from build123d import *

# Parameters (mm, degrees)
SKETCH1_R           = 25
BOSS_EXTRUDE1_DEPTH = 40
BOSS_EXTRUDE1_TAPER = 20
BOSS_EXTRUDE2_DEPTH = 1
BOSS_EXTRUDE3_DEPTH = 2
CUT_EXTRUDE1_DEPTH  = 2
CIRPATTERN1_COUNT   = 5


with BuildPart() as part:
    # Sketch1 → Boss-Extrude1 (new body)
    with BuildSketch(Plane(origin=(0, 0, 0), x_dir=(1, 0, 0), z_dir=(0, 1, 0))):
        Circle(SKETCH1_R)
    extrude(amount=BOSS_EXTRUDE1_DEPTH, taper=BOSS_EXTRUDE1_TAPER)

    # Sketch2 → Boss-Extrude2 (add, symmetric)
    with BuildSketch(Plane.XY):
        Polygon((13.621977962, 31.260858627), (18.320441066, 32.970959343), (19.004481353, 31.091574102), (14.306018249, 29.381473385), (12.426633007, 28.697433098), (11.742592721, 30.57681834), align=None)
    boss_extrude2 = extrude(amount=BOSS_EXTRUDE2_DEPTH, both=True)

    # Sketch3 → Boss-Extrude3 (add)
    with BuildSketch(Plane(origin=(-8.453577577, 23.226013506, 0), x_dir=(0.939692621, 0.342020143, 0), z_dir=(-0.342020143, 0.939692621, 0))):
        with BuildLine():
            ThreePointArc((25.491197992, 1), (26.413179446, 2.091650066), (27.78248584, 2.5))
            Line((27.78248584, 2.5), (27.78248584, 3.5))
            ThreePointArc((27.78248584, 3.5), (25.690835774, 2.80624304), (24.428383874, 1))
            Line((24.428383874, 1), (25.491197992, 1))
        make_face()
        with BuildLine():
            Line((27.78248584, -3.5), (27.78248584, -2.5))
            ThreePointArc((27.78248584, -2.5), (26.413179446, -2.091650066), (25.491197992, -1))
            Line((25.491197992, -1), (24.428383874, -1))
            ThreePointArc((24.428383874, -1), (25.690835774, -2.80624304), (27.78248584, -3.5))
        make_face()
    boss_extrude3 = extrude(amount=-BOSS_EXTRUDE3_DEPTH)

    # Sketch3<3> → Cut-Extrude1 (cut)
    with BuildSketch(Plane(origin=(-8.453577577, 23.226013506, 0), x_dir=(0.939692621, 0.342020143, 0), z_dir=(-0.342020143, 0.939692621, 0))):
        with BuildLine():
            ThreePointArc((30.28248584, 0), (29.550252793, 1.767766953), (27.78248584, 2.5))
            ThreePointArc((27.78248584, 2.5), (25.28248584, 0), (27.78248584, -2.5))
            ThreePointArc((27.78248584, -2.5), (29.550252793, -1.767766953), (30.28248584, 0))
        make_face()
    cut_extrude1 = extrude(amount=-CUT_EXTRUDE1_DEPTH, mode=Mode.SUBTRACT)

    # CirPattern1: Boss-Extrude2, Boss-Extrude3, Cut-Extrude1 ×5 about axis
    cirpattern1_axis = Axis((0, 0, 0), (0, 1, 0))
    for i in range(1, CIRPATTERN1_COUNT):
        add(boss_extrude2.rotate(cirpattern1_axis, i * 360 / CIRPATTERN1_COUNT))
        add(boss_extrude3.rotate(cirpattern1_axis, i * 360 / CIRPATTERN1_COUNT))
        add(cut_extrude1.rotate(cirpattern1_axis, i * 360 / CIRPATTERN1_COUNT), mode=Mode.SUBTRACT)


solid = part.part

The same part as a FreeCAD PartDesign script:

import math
import FreeCAD as App
import Part
import Sketcher
from FreeCAD import Vector
Q = App.Units.Quantity

doc = App.newDocument("Part")
body = doc.addObject("PartDesign::Body", "Body")

# Sketch on XZ plane
sketch1 = doc.addObject("Sketcher::SketchObject", "Sketch")
body.addObject(sketch1)
sketch1.AttachmentSupport = (doc.XZ_Plane, [""])
sketch1.MapMode = "FlatFace"
sketch1.addGeometry(Part.Circle(Vector(0, 0, 0), Vector(0, 0, 1), 25), False)
sketch1.addConstraint([
    Sketcher.Constraint("Coincident", 0, 3, -1, 1),
    Sketcher.Constraint("Diameter", 0, Q("50 mm")),
])
pad1 = doc.addObject("PartDesign::Pad", "Pad")
body.addObject(pad1)
pad1.Profile = sketch1
pad1.Length = 40
pad1.Reversed = True
pad1.TaperAngle = -20

# Sketch on XY plane
sketch2 = doc.addObject("Sketcher::SketchObject", "Sketch001")
body.addObject(sketch2)
sketch2.AttachmentSupport = (doc.XY_Plane, [""])
sketch2.MapMode = "FlatFace"
sketch2.addGeometry([
    Part.LineSegment(Vector(18.320441, 32.970959, 0), Vector(13.621978, 31.260859, 0)),  # 0
    Part.LineSegment(Vector(13.621978, 31.260859, 0), Vector(11.742593, 30.576818, 0)),  # 1
    Part.LineSegment(Vector(11.742593, 30.576818, 0), Vector(12.426633, 28.697433, 0)),  # 2
    Part.LineSegment(Vector(12.426633, 28.697433, 0), Vector(14.306018, 29.381473, 0)),  # 3
    Part.LineSegment(Vector(14.306018, 29.381473, 0), Vector(19.004481, 31.091574, 0)),  # 4
    Part.LineSegment(Vector(19.004481, 31.091574, 0), Vector(18.320441, 32.970959, 0)),  # 5
], False)
sketch2.addConstraint([
    Sketcher.Constraint("Coincident", 0, 2, 1, 1),
    Sketcher.Constraint("Coincident", 1, 2, 2, 1),
    Sketcher.Constraint("Coincident", 2, 2, 3, 1),
    Sketcher.Constraint("Coincident", 3, 2, 4, 1),
    Sketcher.Constraint("Coincident", 4, 2, 5, 1),
    Sketcher.Constraint("Coincident", 5, 2, 0, 1),
    Sketcher.Constraint("Parallel", 0, 1),
    Sketcher.Constraint("Perpendicular", 1, 2),
    Sketcher.Constraint("Perpendicular", 2, 3),
    Sketcher.Constraint("Parallel", 3, 4),
    Sketcher.Constraint("Perpendicular", 4, 5),
    Sketcher.Constraint("Equal", 1, 2),
    Sketcher.Constraint("Equal", 2, 3),
    Sketcher.Constraint("Angle", 0, Q("-160 deg")),
    Sketcher.Constraint("Distance", 0, Q("5 mm")),
    Sketcher.Constraint("Distance", 1, Q("2 mm")),
    Sketcher.Constraint("DistanceY", -1, 1, 0, 2, Q("31.260859 mm")),
    Sketcher.Constraint("DistanceX", -1, 1, 3, 2, Q("14.306018 mm")),
])
pad2 = doc.addObject("PartDesign::Pad", "Pad001")
body.addObject(pad2)
pad2.Profile = sketch2
pad2.Length = 2
pad2.Midplane = True

# Sketch on an angled plane
sketch3 = doc.addObject("Sketcher::SketchObject", "Sketch002")
body.addObject(sketch3)
sketch3.Placement = App.Placement(Vector(-8.453578, 23.226014, 0), App.Rotation(Vector(0.939692621, 0.342020143, 0), Vector(0, 0, -1), Vector(-0.342020143, 0.939692621, 0), "ZXY"))
sketch3.addGeometry([
    Part.ArcOfCircle(Part.Circle(Vector(27.782486, 0, 0), Vector(0, 0, 1), 2.5), math.radians(90), math.radians(156.421821)),  # 0
    Part.LineSegment(Vector(27.782486, 2.5, 0), Vector(27.782486, 3.5, 0)),  # 1
    Part.ArcOfCircle(Part.Circle(Vector(27.782486, 0, 0), Vector(0, 0, 1), 3.5), math.radians(90), math.radians(163.39845)),  # 2
    Part.LineSegment(Vector(24.428384, 1, 0), Vector(25.491198, 1, 0)),  # 3
    Part.LineSegment(Vector(27.782486, -3.5, 0), Vector(27.782486, -2.5, 0)),  # 4
    Part.ArcOfCircle(Part.Circle(Vector(27.782486, 0, 0), Vector(0, 0, 1), 2.5), math.radians(-156.421821), math.radians(-90)),  # 5
    Part.LineSegment(Vector(25.491198, -1, 0), Vector(24.428384, -1, 0)),  # 6
    Part.ArcOfCircle(Part.Circle(Vector(27.782486, 0, 0), Vector(0, 0, 1), 3.5), math.radians(-163.39845), math.radians(-90)),  # 7
], False)
sketch3.addConstraint([
    Sketcher.Constraint("Coincident", 0, 1, 1, 1),
    Sketcher.Constraint("Coincident", 1, 2, 2, 1),
    Sketcher.Constraint("Coincident", 2, 2, 3, 1),
    Sketcher.Constraint("Coincident", 3, 2, 0, 2),
    Sketcher.Constraint("Coincident", 4, 2, 5, 2),
    Sketcher.Constraint("Coincident", 5, 1, 6, 1),
    Sketcher.Constraint("Coincident", 6, 2, 7, 1),
    Sketcher.Constraint("Coincident", 7, 2, 4, 1),
    Sketcher.Constraint("Vertical", 1),
    Sketcher.Constraint("Horizontal", 3),
    Sketcher.Constraint("Vertical", 4),
    Sketcher.Constraint("Horizontal", 6),
    Sketcher.Constraint("Coincident", 2, 3, 0, 3),
    Sketcher.Constraint("Coincident", 5, 3, 0, 3),
    Sketcher.Constraint("Coincident", 7, 3, 0, 3),
    Sketcher.Constraint("Equal", 0, 5),
    Sketcher.Constraint("Equal", 2, 7),
    Sketcher.Constraint("Symmetric", 0, 1, 4, 2, -1),
    Sketcher.Constraint("Vertical", 7, 3, 0, 1),
    Sketcher.Constraint("Vertical", 3, 2, 5, 1),
    Sketcher.Constraint("Radius", 0, Q("2.5 mm")),
    Sketcher.Constraint("Radius", 2, Q("3.5 mm")),
    Sketcher.Constraint("DistanceY", -1, 1, 2, 2, Q("1 mm")),
    Sketcher.Constraint("DistanceX", -1, 1, 0, 3, Q("27.782486 mm")),
])
pad3 = doc.addObject("PartDesign::Pad", "Pad002")
body.addObject(pad3)
pad3.Profile = sketch3
pad3.Length = 2
pad3.Reversed = True

# Sketch on an angled plane
sketch4 = doc.addObject("Sketcher::SketchObject", "Sketch003")
body.addObject(sketch4)
sketch4.Placement = App.Placement(Vector(-8.453578, 23.226014, 0), App.Rotation(Vector(0.939692621, 0.342020143, 0), Vector(0, 0, -1), Vector(-0.342020143, 0.939692621, 0), "ZXY"))
sketch4.addGeometry([
    Part.ArcOfCircle(Part.Circle(Vector(27.782486, 0, 0), Vector(0, 0, 1), 2.5), math.radians(0), math.radians(90)),
    Part.ArcOfCircle(Part.Circle(Vector(27.782486, 0, 0), Vector(0, 0, 1), 2.5), math.radians(90), math.radians(270)),
    Part.ArcOfCircle(Part.Circle(Vector(27.782486, 0, 0), Vector(0, 0, 1), 2.5), math.radians(-90), math.radians(0)),
], False)
sketch4.addConstraint([
    Sketcher.Constraint("Tangent", 0, 2, 1, 1),
    Sketcher.Constraint("Tangent", 1, 2, 2, 1),
    Sketcher.Constraint("Tangent", 2, 2, 0, 1),
    Sketcher.Constraint("Symmetric", 0, 2, 1, 2, -1),
    Sketcher.Constraint("PointOnObject", 2, 2, -1),
    Sketcher.Constraint("Vertical", 2, 3, 0, 2),
    Sketcher.Constraint("Radius", 0, Q("2.5 mm")),
    Sketcher.Constraint("DistanceX", -1, 1, 0, 3, Q("27.782486 mm")),
])
pocket1 = doc.addObject("PartDesign::Pocket", "Pocket")
body.addObject(pocket1)
pocket1.Profile = sketch4
pocket1.Length = 2
doc.recompute()

polarpattern = doc.addObject("PartDesign::PolarPattern", "PolarPattern")
body.addObject(polarpattern)
polarpattern.Originals = [pad2, pad3, pocket1]
polarpattern.Axis = (doc.Y_Axis, [""])
polarpattern.Angle = 360
polarpattern.Occurrences = 5
body.Tip = polarpattern

doc.recompute()
